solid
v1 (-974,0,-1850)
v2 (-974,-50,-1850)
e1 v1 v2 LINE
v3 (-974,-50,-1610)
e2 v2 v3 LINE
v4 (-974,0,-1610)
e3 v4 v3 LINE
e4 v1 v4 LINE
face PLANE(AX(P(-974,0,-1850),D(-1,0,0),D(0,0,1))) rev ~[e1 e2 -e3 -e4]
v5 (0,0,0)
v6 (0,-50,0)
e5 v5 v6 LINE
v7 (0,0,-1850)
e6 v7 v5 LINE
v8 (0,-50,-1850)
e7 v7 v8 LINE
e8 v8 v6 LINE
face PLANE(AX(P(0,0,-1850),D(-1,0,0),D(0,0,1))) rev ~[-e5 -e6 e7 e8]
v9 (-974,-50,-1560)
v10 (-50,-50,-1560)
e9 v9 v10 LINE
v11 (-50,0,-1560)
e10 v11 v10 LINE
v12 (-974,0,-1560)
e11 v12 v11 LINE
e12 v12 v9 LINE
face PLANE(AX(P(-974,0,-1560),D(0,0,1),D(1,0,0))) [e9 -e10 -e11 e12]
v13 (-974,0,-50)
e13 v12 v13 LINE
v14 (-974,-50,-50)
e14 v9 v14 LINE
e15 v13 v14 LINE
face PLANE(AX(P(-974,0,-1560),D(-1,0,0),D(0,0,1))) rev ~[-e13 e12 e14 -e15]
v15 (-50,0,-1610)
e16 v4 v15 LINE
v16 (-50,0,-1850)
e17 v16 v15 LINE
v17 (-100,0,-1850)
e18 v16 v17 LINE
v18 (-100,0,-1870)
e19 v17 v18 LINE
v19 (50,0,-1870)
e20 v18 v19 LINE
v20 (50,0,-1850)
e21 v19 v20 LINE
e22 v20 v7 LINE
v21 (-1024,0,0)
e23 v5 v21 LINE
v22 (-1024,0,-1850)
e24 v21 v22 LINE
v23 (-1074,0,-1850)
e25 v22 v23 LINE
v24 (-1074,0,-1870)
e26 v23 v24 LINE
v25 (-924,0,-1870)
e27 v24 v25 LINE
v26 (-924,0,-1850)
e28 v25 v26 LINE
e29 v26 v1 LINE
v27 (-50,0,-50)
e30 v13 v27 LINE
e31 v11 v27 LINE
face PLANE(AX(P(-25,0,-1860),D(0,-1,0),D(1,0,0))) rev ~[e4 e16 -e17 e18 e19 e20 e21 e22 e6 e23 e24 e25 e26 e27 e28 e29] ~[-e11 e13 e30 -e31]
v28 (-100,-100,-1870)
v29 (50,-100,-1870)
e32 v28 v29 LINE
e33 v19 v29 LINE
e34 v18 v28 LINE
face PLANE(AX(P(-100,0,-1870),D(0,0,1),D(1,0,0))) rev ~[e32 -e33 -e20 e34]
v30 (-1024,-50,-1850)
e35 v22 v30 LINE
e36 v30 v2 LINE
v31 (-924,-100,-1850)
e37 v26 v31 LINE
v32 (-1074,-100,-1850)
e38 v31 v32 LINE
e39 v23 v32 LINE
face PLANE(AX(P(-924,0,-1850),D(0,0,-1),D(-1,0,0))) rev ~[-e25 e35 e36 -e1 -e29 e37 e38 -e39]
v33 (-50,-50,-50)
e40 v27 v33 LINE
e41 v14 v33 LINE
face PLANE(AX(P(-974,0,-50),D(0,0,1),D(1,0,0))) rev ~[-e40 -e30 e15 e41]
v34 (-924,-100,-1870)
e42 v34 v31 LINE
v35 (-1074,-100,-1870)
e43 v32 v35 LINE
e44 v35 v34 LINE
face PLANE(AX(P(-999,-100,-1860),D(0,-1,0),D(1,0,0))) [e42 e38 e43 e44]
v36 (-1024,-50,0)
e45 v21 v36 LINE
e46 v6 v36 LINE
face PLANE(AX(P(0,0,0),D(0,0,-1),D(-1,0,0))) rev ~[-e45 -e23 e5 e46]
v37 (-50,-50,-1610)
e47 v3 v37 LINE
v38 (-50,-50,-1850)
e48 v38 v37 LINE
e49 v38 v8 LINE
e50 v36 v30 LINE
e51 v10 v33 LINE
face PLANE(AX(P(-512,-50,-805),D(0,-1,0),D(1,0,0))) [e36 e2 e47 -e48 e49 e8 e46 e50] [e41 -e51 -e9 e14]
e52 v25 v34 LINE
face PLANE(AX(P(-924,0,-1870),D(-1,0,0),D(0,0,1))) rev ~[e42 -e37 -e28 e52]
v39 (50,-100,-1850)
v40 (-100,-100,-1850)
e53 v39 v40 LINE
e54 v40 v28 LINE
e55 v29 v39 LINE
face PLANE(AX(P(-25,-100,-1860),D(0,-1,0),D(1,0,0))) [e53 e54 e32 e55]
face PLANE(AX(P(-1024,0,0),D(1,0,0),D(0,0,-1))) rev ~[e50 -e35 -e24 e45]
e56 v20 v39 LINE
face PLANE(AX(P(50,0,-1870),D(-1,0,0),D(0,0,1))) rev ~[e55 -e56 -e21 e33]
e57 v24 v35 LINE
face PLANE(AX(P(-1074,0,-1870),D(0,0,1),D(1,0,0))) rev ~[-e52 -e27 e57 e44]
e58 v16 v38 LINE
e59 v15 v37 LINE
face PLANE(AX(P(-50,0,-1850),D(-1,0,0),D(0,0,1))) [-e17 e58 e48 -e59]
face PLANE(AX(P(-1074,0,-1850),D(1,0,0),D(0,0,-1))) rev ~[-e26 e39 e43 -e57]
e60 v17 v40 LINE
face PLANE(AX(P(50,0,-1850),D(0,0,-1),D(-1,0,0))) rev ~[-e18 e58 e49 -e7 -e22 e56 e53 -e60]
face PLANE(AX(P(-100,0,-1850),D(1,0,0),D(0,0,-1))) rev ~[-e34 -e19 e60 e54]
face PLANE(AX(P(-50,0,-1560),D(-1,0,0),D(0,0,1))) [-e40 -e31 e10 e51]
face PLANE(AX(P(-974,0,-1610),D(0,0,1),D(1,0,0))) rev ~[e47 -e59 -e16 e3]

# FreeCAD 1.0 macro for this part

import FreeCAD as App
import Part
import Sketcher
from FreeCAD import Vector
Q = App.Units.Quantity


def add_polygon(sketch, points):
    """Adds a closed chain of lines whose ends are joined by coincident constraints."""
    first, n = sketch.GeometryCount, len(points)
    for a, b in zip(points, points[1:] + points[:1]):
        sketch.addGeometry(Part.LineSegment(App.Vector(*a, 0), App.Vector(*b, 0)), False)
    for i in range(n):
        sketch.addConstraint(Sketcher.Constraint("Coincident", first + i, 2, first + (i + 1) % n, 1))

doc = App.newDocument("Part")
params = doc.addObject("Spreadsheet::Sheet", "Params")
for row, (alias, value) in enumerate([
    ("sketch1_width", "1024 mm"),
    ("sketch1_width2", "50 mm"),
    ("sketch1_height", "1850 mm"),
    ("sketch1_height2", "240 mm"),
    ("sketch1_height3", "1510 mm"),
    ("pad1_length", "50 mm"),
    ("sketch2_width", "150 mm"),
    ("sketch2_height", "20 mm"),
    ("pad2_length", "100 mm"),
    ("sketch3_width", "150 mm"),
    ("sketch3_height", "20 mm"),
    ("pad3_length", "100 mm"),
], start=1):
    params.set(f"A{row}", alias)
    params.set(f"B{row}", "=" + value)
    params.setAlias(f"B{row}", alias)

body = doc.addObject("PartDesign::Body", "Body")

sketch1 = body.newObject("Sketcher::SketchObject", "Sketch")
sketch1.AttachmentSupport = (doc.getObject("XZ_Plane"), [""])
sketch1.MapMode = "FlatFace"
add_polygon(sketch1, [(0, 0), (-1024, 0), (-1024, -1850), (-974, -1850), (-974, -1610), (-50, -1610), (-50, -1850), (0, -1850)])
add_polygon(sketch1, [(-50, -1560), (-974, -1560), (-974, -50), (-50, -50)])
sketch1.addConstraint(Sketcher.Constraint("Horizontal", 0))
sketch1.addConstraint(Sketcher.Constraint("Vertical", 1))
sketch1.addConstraint(Sketcher.Constraint("Horizontal", 2))
sketch1.addConstraint(Sketcher.Constraint("Vertical", 3))
sketch1.addConstraint(Sketcher.Constraint("Horizontal", 4))
sketch1.addConstraint(Sketcher.Constraint("Vertical", 5))
sketch1.addConstraint(Sketcher.Constraint("Horizontal", 6))
sketch1.addConstraint(Sketcher.Constraint("Vertical", 7))
sketch1.addConstraint(Sketcher.Constraint("Horizontal", 8))
sketch1.addConstraint(Sketcher.Constraint("Vertical", 9))
sketch1.addConstraint(Sketcher.Constraint("Horizontal", 10))
sketch1.addConstraint(Sketcher.Constraint("Vertical", 11))
sketch1.addConstraint(Sketcher.Constraint("Coincident", 7, 2, -1, 1))
sketch1.addConstraint(Sketcher.Constraint("Horizontal", 2, 2, 5, 2))
sketch1.addConstraint(Sketcher.Constraint("Vertical", 3, 2, 8, 2))
sketch1.addConstraint(Sketcher.Constraint("Vertical", 5, 2, 10, 2))
sketch1.addConstraint(Sketcher.Constraint("Equal", 2, 6))
sketch1.addConstraint(Sketcher.Constraint("DistanceX", 0, 2, 0, 1, Q("1024 mm")))
sketch1.addConstraint(Sketcher.Constraint("DistanceX", 2, 1, 2, 2, Q("50 mm")))
sketch1.addConstraint(Sketcher.Constraint("DistanceY", 1, 2, 1, 1, Q("1850 mm")))
sketch1.addConstraint(Sketcher.Constraint("DistanceY", 3, 1, 3, 2, Q("240 mm")))
sketch1.addConstraint(Sketcher.Constraint("DistanceY", 9, 1, 9, 2, Q("1510 mm")))
sketch1.addConstraint(Sketcher.Constraint("DistanceY", 8, 2, -1, 1, Q("1560 mm")))
sketch1.setExpression("Constraints[29]", "Params.sketch1_width")
sketch1.setExpression("Constraints[30]", "Params.sketch1_width2")
sketch1.setExpression("Constraints[31]", "Params.sketch1_height")
sketch1.setExpression("Constraints[32]", "Params.sketch1_height2")
sketch1.setExpression("Constraints[33]", "Params.sketch1_height3")
pad1 = body.newObject("PartDesign::Pad", "Pad")
pad1.Profile = sketch1
pad1.setExpression("Length", "Params.pad1_length")

sketch2 = body.newObject("Sketcher::SketchObject", "Sketch001")
sketch2.AttachmentSupport = (doc.getObject("XZ_Plane"), [""])
sketch2.MapMode = "FlatFace"
add_polygon(sketch2, [(-1074, -1850), (-1074, -1870), (-924, -1870), (-924, -1850)])
sketch2.addConstraint(Sketcher.Constraint("Vertical", 0))
sketch2.addConstraint(Sketcher.Constraint("Horizontal", 1))
sketch2.addConstraint(Sketcher.Constraint("Vertical", 2))
sketch2.addConstraint(Sketcher.Constraint("Horizontal", 3))
sketch2.addConstraint(Sketcher.Constraint("DistanceX", 1, 1, 1, 2, Q("150 mm")))
sketch2.addConstraint(Sketcher.Constraint("DistanceY", 0, 2, 0, 1, Q("20 mm")))
sketch2.addConstraint(Sketcher.Constraint("DistanceX", 0, 2, -1, 1, Q("1074 mm")))
sketch2.addConstraint(Sketcher.Constraint("DistanceY", 0, 2, -1, 1, Q("1870 mm")))
sketch2.setExpression("Constraints[8]", "Params.sketch2_width")
sketch2.setExpression("Constraints[9]", "Params.sketch2_height")
pad2 = body.newObject("PartDesign::Pad", "Pad001")
pad2.Profile = sketch2
pad2.setExpression("Length", "Params.pad2_length")

sketch3 = body.newObject("Sketcher::SketchObject", "Sketch002")
sketch3.AttachmentSupport = (doc.getObject("XZ_Plane"), [""])
sketch3.MapMode = "FlatFace"
add_polygon(sketch3, [(50, -1850), (-100, -1850), (-100, -1870), (50, -1870)])
sketch3.addConstraint(Sketcher.Constraint("Horizontal", 0))
sketch3.addConstraint(Sketcher.Constraint("Vertical", 1))
sketch3.addConstraint(Sketcher.Constraint("Horizontal", 2))
sketch3.addConstraint(Sketcher.Constraint("Vertical", 3))
sketch3.addConstraint(Sketcher.Constraint("DistanceX", 0, 2, 0, 1, Q("150 mm")))
sketch3.addConstraint(Sketcher.Constraint("DistanceY", 1, 2, 1, 1, Q("20 mm")))
sketch3.addConstraint(Sketcher.Constraint("DistanceX", 0, 2, -1, 1, Q("100 mm")))
sketch3.addConstraint(Sketcher.Constraint("DistanceY", 0, 2, -1, 1, Q("1850 mm")))
sketch3.setExpression("Constraints[8]", "Params.sketch3_width")
sketch3.setExpression("Constraints[9]", "Params.sketch3_height")
pad3 = body.newObject("PartDesign::Pad", "Pad002")
pad3.Profile = sketch3
pad3.setExpression("Length", "Params.pad3_length")

doc.recompute()
